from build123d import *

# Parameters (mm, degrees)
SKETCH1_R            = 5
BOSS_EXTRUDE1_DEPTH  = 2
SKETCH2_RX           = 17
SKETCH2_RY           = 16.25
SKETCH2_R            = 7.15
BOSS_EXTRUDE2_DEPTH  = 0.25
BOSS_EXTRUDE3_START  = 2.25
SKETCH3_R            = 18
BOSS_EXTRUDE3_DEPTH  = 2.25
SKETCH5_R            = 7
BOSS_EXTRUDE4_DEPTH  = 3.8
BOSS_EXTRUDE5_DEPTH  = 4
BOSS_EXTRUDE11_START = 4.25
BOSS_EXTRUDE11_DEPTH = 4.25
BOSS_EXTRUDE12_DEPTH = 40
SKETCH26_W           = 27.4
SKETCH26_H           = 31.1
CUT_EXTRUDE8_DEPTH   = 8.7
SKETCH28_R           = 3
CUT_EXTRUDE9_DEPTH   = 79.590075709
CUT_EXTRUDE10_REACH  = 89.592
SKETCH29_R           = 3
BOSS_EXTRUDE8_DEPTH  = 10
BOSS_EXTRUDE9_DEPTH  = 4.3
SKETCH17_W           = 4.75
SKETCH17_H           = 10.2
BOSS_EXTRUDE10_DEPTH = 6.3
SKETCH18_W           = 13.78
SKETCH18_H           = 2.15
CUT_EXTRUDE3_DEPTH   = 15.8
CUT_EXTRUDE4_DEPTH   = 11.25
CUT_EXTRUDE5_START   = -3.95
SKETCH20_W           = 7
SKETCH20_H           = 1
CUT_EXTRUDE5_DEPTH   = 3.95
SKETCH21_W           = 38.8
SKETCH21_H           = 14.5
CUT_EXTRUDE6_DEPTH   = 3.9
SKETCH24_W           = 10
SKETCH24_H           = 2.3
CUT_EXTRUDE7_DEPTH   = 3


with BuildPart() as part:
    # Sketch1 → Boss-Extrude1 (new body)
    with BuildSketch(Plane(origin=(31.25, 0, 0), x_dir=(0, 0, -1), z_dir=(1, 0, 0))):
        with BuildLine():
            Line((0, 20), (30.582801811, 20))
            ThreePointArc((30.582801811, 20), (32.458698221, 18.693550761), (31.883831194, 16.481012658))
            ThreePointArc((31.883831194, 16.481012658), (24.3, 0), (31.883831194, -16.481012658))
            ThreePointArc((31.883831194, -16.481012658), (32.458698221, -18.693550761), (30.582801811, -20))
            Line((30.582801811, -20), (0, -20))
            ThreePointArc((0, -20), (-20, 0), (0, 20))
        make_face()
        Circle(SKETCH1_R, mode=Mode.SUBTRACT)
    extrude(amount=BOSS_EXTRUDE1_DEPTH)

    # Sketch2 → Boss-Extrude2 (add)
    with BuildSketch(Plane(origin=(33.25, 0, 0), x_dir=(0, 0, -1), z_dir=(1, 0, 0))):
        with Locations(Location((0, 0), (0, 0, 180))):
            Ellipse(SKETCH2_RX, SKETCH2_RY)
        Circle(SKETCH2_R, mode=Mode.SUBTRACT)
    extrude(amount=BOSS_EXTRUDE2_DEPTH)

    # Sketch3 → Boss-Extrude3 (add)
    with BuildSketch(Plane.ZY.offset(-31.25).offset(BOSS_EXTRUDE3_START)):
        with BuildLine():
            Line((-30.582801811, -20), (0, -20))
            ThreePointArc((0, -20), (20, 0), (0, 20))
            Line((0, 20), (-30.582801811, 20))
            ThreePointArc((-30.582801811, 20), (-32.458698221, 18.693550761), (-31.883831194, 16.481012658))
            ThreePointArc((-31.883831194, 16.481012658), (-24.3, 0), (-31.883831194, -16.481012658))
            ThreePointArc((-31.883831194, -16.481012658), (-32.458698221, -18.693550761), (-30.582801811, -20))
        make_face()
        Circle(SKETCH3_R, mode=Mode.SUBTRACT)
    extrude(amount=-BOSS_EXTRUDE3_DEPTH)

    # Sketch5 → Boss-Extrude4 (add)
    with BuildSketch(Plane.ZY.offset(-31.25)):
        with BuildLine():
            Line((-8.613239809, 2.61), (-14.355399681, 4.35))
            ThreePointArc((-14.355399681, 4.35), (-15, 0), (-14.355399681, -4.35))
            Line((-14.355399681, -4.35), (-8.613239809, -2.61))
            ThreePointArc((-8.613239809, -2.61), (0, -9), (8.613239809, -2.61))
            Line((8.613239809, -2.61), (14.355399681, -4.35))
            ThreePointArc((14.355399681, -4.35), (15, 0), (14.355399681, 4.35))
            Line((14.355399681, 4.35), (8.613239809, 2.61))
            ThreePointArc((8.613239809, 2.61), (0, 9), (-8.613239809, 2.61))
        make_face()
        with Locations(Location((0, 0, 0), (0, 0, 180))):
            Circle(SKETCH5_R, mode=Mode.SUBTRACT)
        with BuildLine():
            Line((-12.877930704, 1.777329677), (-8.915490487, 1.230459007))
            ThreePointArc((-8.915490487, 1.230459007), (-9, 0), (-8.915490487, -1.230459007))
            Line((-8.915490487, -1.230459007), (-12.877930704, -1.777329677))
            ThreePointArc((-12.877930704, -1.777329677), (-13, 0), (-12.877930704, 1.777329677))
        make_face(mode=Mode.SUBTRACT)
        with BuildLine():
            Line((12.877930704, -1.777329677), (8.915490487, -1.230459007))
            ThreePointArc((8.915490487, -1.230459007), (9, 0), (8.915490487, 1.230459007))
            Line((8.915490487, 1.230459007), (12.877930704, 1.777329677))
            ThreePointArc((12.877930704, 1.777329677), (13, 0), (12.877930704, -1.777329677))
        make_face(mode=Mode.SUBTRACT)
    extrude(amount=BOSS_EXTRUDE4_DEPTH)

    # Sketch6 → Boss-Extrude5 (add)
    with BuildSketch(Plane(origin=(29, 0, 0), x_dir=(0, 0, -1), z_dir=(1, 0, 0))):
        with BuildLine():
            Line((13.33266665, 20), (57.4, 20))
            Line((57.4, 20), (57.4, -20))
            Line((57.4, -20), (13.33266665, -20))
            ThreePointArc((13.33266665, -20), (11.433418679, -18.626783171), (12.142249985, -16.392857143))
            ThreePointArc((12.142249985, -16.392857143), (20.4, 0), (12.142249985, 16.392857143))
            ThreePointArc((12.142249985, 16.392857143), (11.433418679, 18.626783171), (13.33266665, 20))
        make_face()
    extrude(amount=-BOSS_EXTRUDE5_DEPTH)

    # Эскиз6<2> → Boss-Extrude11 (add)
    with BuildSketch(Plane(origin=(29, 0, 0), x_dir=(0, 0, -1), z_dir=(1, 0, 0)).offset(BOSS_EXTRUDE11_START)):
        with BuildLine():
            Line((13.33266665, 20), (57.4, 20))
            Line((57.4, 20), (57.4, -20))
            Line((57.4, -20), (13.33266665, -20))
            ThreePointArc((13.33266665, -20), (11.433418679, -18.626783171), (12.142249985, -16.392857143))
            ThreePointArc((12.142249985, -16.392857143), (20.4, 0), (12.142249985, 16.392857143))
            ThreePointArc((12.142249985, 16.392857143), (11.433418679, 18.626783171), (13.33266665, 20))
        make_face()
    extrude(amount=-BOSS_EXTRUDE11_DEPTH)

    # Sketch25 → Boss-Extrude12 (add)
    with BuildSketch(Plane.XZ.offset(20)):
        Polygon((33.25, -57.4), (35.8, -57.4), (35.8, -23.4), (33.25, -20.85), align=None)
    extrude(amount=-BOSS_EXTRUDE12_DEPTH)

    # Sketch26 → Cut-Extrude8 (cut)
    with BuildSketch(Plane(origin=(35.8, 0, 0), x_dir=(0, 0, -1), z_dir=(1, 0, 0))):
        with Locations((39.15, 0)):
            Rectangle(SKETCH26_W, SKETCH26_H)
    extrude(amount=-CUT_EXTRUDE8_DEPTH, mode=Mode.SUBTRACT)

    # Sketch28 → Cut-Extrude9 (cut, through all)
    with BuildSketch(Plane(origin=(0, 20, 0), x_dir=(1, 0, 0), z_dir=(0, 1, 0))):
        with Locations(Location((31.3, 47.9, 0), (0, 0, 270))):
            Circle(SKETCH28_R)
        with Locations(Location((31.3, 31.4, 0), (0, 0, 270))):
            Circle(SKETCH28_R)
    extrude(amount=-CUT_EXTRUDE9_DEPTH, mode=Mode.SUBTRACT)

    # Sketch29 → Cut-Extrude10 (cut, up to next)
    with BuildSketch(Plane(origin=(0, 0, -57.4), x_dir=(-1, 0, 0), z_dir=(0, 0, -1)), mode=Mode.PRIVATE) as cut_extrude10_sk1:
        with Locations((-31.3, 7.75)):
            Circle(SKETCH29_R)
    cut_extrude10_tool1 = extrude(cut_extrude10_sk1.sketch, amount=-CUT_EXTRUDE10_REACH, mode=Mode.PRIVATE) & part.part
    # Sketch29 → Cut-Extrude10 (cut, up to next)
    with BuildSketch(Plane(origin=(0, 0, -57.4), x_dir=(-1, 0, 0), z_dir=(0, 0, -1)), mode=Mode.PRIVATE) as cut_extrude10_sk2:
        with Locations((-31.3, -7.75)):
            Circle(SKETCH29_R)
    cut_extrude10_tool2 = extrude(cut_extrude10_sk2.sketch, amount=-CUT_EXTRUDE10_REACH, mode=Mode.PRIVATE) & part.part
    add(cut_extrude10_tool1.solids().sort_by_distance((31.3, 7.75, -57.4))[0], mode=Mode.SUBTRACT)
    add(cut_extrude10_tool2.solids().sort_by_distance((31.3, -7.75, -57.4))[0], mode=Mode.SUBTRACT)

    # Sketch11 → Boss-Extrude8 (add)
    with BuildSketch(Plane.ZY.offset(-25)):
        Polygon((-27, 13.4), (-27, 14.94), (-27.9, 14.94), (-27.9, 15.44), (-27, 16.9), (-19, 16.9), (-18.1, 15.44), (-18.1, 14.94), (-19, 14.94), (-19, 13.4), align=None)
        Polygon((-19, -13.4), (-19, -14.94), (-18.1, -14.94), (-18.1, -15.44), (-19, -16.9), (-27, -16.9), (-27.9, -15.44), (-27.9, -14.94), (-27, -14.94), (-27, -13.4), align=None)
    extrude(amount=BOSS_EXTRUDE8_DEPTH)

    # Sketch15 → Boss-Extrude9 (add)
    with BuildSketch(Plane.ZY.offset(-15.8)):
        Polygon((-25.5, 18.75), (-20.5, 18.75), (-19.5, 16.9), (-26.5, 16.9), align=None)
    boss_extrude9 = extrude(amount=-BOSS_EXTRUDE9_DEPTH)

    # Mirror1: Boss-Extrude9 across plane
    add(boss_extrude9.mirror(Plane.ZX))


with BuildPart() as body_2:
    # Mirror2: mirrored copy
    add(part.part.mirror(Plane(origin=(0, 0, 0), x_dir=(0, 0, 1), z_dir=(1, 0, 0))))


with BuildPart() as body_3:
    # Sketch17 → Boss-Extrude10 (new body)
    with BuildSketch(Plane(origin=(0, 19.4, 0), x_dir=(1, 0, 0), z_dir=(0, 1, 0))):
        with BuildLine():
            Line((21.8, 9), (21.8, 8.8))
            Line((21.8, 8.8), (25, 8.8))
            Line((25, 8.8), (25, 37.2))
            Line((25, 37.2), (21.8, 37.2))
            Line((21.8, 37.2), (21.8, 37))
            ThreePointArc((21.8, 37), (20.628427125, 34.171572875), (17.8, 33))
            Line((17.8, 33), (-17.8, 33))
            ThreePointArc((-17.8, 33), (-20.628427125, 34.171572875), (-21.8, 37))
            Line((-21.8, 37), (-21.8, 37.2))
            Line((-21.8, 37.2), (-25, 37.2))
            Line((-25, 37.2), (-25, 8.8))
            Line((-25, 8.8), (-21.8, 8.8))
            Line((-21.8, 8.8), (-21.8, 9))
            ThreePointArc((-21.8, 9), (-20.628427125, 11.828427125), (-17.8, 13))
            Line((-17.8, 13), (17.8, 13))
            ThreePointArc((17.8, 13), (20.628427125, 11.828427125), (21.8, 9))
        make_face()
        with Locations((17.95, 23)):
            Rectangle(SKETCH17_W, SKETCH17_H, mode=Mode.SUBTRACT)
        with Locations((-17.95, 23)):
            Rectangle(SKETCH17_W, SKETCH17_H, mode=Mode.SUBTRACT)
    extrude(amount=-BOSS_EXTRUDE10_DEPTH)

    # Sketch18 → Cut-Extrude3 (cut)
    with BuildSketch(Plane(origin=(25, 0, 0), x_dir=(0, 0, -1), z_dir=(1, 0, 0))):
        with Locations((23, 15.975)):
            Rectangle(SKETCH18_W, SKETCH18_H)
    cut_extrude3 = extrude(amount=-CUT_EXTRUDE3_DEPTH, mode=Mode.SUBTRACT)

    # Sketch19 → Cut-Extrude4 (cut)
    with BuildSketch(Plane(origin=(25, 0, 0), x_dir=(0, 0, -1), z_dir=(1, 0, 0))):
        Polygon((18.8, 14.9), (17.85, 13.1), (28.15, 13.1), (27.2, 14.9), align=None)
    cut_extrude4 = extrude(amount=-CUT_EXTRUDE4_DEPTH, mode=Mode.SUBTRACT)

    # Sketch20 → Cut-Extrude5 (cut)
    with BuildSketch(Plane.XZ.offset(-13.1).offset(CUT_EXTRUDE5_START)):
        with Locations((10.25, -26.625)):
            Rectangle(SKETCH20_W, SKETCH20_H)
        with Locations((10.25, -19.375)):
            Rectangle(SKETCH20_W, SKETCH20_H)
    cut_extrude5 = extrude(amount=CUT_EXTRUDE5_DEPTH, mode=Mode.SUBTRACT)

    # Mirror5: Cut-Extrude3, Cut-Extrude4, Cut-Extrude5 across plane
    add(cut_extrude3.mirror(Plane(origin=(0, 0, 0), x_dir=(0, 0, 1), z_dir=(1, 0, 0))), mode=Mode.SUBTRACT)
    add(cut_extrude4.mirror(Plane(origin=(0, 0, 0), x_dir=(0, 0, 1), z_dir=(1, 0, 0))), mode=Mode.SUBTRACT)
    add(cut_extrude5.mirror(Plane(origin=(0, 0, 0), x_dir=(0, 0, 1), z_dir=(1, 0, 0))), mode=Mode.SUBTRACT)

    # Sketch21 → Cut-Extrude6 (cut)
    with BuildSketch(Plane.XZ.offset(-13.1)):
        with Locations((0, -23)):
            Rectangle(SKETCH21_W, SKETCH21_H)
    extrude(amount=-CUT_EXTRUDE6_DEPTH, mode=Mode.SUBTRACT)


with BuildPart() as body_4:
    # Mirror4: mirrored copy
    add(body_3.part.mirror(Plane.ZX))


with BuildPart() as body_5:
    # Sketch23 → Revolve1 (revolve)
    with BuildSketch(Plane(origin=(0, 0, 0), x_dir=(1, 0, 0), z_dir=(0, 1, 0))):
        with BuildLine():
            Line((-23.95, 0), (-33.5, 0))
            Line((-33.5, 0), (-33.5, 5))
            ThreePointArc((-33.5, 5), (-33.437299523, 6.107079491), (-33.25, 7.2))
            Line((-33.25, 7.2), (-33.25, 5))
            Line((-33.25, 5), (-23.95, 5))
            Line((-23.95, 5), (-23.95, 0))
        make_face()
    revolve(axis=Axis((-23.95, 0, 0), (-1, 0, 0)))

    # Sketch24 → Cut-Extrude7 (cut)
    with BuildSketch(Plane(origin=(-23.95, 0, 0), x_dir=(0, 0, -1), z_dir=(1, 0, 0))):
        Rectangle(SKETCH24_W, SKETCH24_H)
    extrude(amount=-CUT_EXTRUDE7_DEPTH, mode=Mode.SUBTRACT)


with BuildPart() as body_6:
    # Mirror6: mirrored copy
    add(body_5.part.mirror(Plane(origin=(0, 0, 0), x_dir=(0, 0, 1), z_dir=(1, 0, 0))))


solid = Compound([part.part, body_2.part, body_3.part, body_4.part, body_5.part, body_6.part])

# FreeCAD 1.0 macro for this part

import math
import FreeCAD as App
import Part
import Sketcher
Q = App.Units.Quantity


def add_polygon(sketch, points):
    """Adds a closed chain of lines whose ends are joined by coincident constraints."""
    first, n = sketch.GeometryCount, len(points)
    for a, b in zip(points, points[1:] + points[:1]):
        sketch.addGeometry(Part.LineSegment(App.Vector(*a, 0), App.Vector(*b, 0)), False)
    for i in range(n):
        sketch.addConstraint(Sketcher.Constraint("Coincident", first + i, 2, first + (i + 1) % n, 1))

doc = App.newDocument("Part")
body = doc.addObject("PartDesign::Body", "Body")

# Sketch on YZ plane
sketch1 = body.newObject("Sketcher::SketchObject", "Sketch")
sketch1.AttachmentSupport = (doc.getObject("YZ_Plane"), [""])
sketch1.MapMode = "FlatFace"
sketch1.AttachmentOffset = App.Placement(App.Vector(0, 0, 31.25), App.Rotation())
sketch1.addGeometry(Part.LineSegment(App.Vector(20, -30.6, 0), App.Vector(20, 0, 0)), False)
sketch1.addGeometry(Part.ArcOfCircle(Part.Circle(App.Vector(0, 0, 0), App.Vector(0, 0, 1), 20), math.radians(0), math.radians(180)), False)
sketch1.addGeometry(Part.LineSegment(App.Vector(-20, 0, 0), App.Vector(-20, -30.6, 0)), False)
sketch1.addGeometry(Part.ArcOfCircle(Part.Circle(App.Vector(-18, -30.6, 0), App.Vector(0, 0, 1), 2), math.radians(180), math.radians(319)), False)
sketch1.addGeometry(Part.ArcOfCircle(Part.Circle(App.Vector(0, -46, 0), App.Vector(0, 0, 1), 21.7), math.radians(41), math.radians(139)), False)
sketch1.addGeometry(Part.ArcOfCircle(Part.Circle(App.Vector(18, -30.6, 0), App.Vector(0, 0, 1), 2), math.radians(-139), math.radians(0)), False)
sketch1.addGeometry(Part.Circle(App.Vector(0, 0, 0), App.Vector(0, 0, 1), 5), False)
sketch1.addConstraint(Sketcher.Constraint("Tangent", 0, 2, 1, 1))
sketch1.addConstraint(Sketcher.Constraint("Tangent", 1, 2, 2, 1))
sketch1.addConstraint(Sketcher.Constraint("Tangent", 2, 2, 3, 1))
sketch1.addConstraint(Sketcher.Constraint("Tangent", 3, 2, 4, 2))
sketch1.addConstraint(Sketcher.Constraint("Tangent", 4, 1, 5, 1))
sketch1.addConstraint(Sketcher.Constraint("Tangent", 5, 2, 0, 1))
sketch1.addConstraint(Sketcher.Constraint("Vertical", 0))
sketch1.addConstraint(Sketcher.Constraint("Vertical", 2))
sketch1.addConstraint(Sketcher.Constraint("Coincident", 1, 3, -1, 1))
sketch1.addConstraint(Sketcher.Constraint("Coincident", 6, 3, -1, 1))
sketch1.addConstraint(Sketcher.Constraint("Equal", 3, 5))
sketch1.addConstraint(Sketcher.Constraint("PointOnObject", 4, 3, -2))
sketch1.addConstraint(Sketcher.Constraint("Diameter", 6, 10.0))
sketch1.addConstraint(Sketcher.Constraint("Radius", 1, 20.0))
sketch1.addConstraint(Sketcher.Constraint("Radius", 3, 2.0))
sketch1.addConstraint(Sketcher.Constraint("Radius", 4, 21.7))
sketch1.addConstraint(Sketcher.Constraint("DistanceY", 4, 3, -1, 1, 46.0))
pad1 = body.newObject("PartDesign::Pad", "Pad")
pad1.Profile = sketch1
pad1.Length = 2

# Sketch on YZ plane
sketch2 = body.newObject("Sketcher::SketchObject", "Sketch001")
sketch2.AttachmentSupport = (doc.getObject("YZ_Plane"), [""])
sketch2.MapMode = "FlatFace"
sketch2.AttachmentOffset = App.Placement(App.Vector(0, 0, 33.25), App.Rotation())
sketch2.addGeometry(Part.Ellipse(App.Vector(0, 17, 0), App.Vector(-16.25, 0, 0), App.Vector(0, 0, 0)), False)
sketch2.addGeometry(Part.Circle(App.Vector(0, 0, 0), App.Vector(0, 0, 1), 7.15), False)
sketch2.addConstraint(Sketcher.Constraint("Block", 0))
sketch2.addConstraint(Sketcher.Constraint("Coincident", 1, 3, -1, 1))
sketch2.addConstraint(Sketcher.Constraint("Diameter", 1, 14.3))
pad2 = body.newObject("PartDesign::Pad", "Pad001")
pad2.Profile = sketch2
pad2.Length = 0.25

# Sketch on YZ plane
sketch3 = body.newObject("Sketcher::SketchObject", "Sketch002")
sketch3.AttachmentSupport = (doc.getObject("YZ_Plane"), [""])
sketch3.MapMode = "FlatFace"
sketch3.AttachmentOffset = App.Placement(App.Vector(0, 0, 29), App.Rotation())
sketch3.addGeometry(Part.LineSegment(App.Vector(-20, -30.6, 0), App.Vector(-20, 0, 0)), False)
sketch3.addGeometry(Part.ArcOfCircle(Part.Circle(App.Vector(0, 0, 0), App.Vector(0, 0, 1), 20), math.radians(0), math.radians(180)), False)
sketch3.addGeometry(Part.LineSegment(App.Vector(20, 0, 0), App.Vector(20, -30.6, 0)), False)
sketch3.addGeometry(Part.ArcOfCircle(Part.Circle(App.Vector(18, -30.6, 0), App.Vector(0, 0, 1), 2), math.radians(-139), math.radians(0)), False)
sketch3.addGeometry(Part.ArcOfCircle(Part.Circle(App.Vector(0, -46, 0), App.Vector(0, 0, 1), 21.7), math.radians(41), math.radians(139)), False)
sketch3.addGeometry(Part.ArcOfCircle(Part.Circle(App.Vector(-18, -30.6, 0), App.Vector(0, 0, 1), 2), math.radians(180), math.radians(319)), False)
sketch3.addGeometry(Part.Circle(App.Vector(0, 0, 0), App.Vector(0, 0, 1), 18), False)
sketch3.addConstraint(Sketcher.Constraint("Tangent", 0, 2, 1, 2))
sketch3.addConstraint(Sketcher.Constraint("Tangent", 1, 1, 2, 1))
sketch3.addConstraint(Sketcher.Constraint("Tangent", 2, 2, 3, 2))
sketch3.addConstraint(Sketcher.Constraint("Tangent", 3, 1, 4, 1))
sketch3.addConstraint(Sketcher.Constraint("Tangent", 4, 2, 5, 2))
sketch3.addConstraint(Sketcher.Constraint("Tangent", 5, 1, 0, 1))
sketch3.addConstraint(Sketcher.Constraint("Vertical", 0))
sketch3.addConstraint(Sketcher.Constraint("Vertical", 2))
sketch3.addConstraint(Sketcher.Constraint("Coincident", 1, 3, -1, 1))
sketch3.addConstraint(Sketcher.Constraint("Coincident", 6, 3, -1, 1))
sketch3.addConstraint(Sketcher.Constraint("Equal", 3, 5))
sketch3.addConstraint(Sketcher.Constraint("PointOnObject", 4, 3, -2))
sketch3.addConstraint(Sketcher.Constraint("Diameter", 6, 36.0))
sketch3.addConstraint(Sketcher.Constraint("Radius", 1, 20.0))
sketch3.addConstraint(Sketcher.Constraint("Radius", 3, 2.0))
sketch3.addConstraint(Sketcher.Constraint("Radius", 4, 21.7))
sketch3.addConstraint(Sketcher.Constraint("DistanceY", 4, 3, -1, 1, 46.0))
pad3 = body.newObject("PartDesign::Pad", "Pad002")
pad3.Profile = sketch3
pad3.Length = 2.25

# Sketch on YZ plane
sketch4 = body.newObject("Sketcher::SketchObject", "Sketch003")
sketch4.AttachmentSupport = (doc.getObject("YZ_Plane"), [""])
sketch4.MapMode = "FlatFace"
sketch4.AttachmentOffset = App.Placement(App.Vector(0, 0, 31.25), App.Rotation())
sketch4.addGeometry(Part.LineSegment(App.Vector(2.6, -8.6, 0), App.Vector(4.3, -14.4, 0)), False)
sketch4.addGeometry(Part.ArcOfCircle(Part.Circle(App.Vector(0, 0, 0), App.Vector(0, 0, 1), 15), math.radians(-107), math.radians(-73)), False)
sketch4.addGeometry(Part.LineSegment(App.Vector(-4.3, -14.4, 0), App.Vector(-2.6, -8.6, 0)), False)
sketch4.addGeometry(Part.ArcOfCircle(Part.Circle(App.Vector(0, 0, 0), App.Vector(0, 0, 1), 9), math.radians(107), math.radians(253)), False)
sketch4.addGeometry(Part.LineSegment(App.Vector(-2.6, 8.6, 0), App.Vector(-4.3, 14.4, 0)), False)
sketch4.addGeometry(Part.ArcOfCircle(Part.Circle(App.Vector(0, 0, 0), App.Vector(0, 0, 1), 15), math.radians(73), math.radians(107)), False)
sketch4.addGeometry(Part.LineSegment(App.Vector(4.3, 14.4, 0), App.Vector(2.6, 8.6, 0)), False)
sketch4.addGeometry(Part.ArcOfCircle(Part.Circle(App.Vector(0, 0, 0), App.Vector(0, 0, 1), 9), math.radians(-73), math.radians(73)), False)
sketch4.addGeometry(Part.ArcOfCircle(Part.Circle(App.Vector(0, 0, 0), App.Vector(0, 0, 1), 13), math.radians(-97.86), math.radians(-82.14)), False)
sketch4.addGeometry(Part.LineSegment(App.Vector(1.8, -12.9, 0), App.Vector(1.2, -8.9, 0)), False)
sketch4.addGeometry(Part.ArcOfCircle(Part.Circle(App.Vector(0, 0, 0), App.Vector(0, 0, 1), 9), math.radians(-97.86), math.radians(-82.14)), False)
sketch4.addGeometry(Part.LineSegment(App.Vector(-1.2, -8.9, 0), App.Vector(-1.8, -12.9, 0)), False)
sketch4.addGeometry(Part.Circle(App.Vector(0, 0, 0), App.Vector(0, 0, 1), 7), False)
sketch4.addGeometry(Part.ArcOfCircle(Part.Circle(App.Vector(0, 0, 0), App.Vector(0, 0, 1), 13), math.radians(82.14), math.radians(97.86)), False)
sketch4.addGeometry(Part.LineSegment(App.Vector(-1.8, 12.9, 0), App.Vector(-1.2, 8.9, 0)), False)
sketch4.addGeometry(Part.ArcOfCircle(Part.Circle(App.Vector(0, 0, 0), App.Vector(0, 0, 1), 9), math.radians(82.14), math.radians(97.86)), False)
sketch4.addGeometry(Part.LineSegment(App.Vector(1.2, 8.9, 0), App.Vector(1.8, 12.9, 0)), False)
sketch4.addConstraint(Sketcher.Constraint("Coincident", 0, 2, 1, 2))
sketch4.addConstraint(Sketcher.Constraint("Coincident", 1, 1, 2, 1))
sketch4.addConstraint(Sketcher.Constraint("Coincident", 2, 2, 3, 2))
sketch4.addConstraint(Sketcher.Constraint("Coincident", 3, 1, 4, 1))
sketch4.addConstraint(Sketcher.Constraint("Coincident", 4, 2, 5, 2))
sketch4.addConstraint(Sketcher.Constraint("Coincident", 5, 1, 6, 1))
sketch4.addConstraint(Sketcher.Constraint("Coincident", 6, 2, 7, 2))
sketch4.addConstraint(Sketcher.Constraint("Coincident", 7, 1, 0, 1))
sketch4.addConstraint(Sketcher.Constraint("Coincident", 8, 2, 9, 1))
sketch4.addConstraint(Sketcher.Constraint("Coincident", 9, 2, 10, 2))
sketch4.addConstraint(Sketcher.Constraint("Coincident", 10, 1, 11, 1))
sketch4.addConstraint(Sketcher.Constraint("Coincident", 11, 2, 8, 1))
sketch4.addConstraint(Sketcher.Constraint("Coincident", 13, 2, 14, 1))
sketch4.addConstraint(Sketcher.Constraint("Coincident", 14, 2, 15, 2))
sketch4.addConstraint(Sketcher.Constraint("Coincident", 15, 1, 16, 1))
sketch4.addConstraint(Sketcher.Constraint("Coincident", 16, 2, 13, 1))
sketch4.addConstraint(Sketcher.Constraint("Coincident", 1, 3, -1, 1))
sketch4.addConstraint(Sketcher.Constraint("Coincident", 3, 3, -1, 1))
sketch4.addConstraint(Sketcher.Constraint("Coincident", 5, 3, -1, 1))
sketch4.addConstraint(Sketcher.Constraint("Coincident", 7, 3, -1, 1))
sketch4.addConstraint(Sketcher.Constraint("Coincident", 8, 3, -1, 1))
sketch4.addConstraint(Sketcher.Constraint("Coincident", 10, 3, -1, 1))
sketch4.addConstraint(Sketcher.Constraint("Coincident", 12, 3, -1, 1))
sketch4.addConstraint(Sketcher.Constraint("Coincident", 13, 3, -1, 1))
sketch4.addConstraint(Sketcher.Constraint("Coincident", 15, 3, -1, 1))
sketch4.addConstraint(Sketcher.Constraint("Equal", 1, 5))
sketch4.addConstraint(Sketcher.Constraint("Equal", 3, 7))
sketch4.addConstraint(Sketcher.Constraint("Equal", 7, 10))
sketch4.addConstraint(Sketcher.Constraint("Equal", 8, 13))
sketch4.addConstraint(Sketcher.Constraint("Equal", 10, 15))
sketch4.addConstraint(Sketcher.Constraint("Parallel", 0, 4))
sketch4.addConstraint(Sketcher.Constraint("Parallel", 2, 6))
sketch4.addConstraint(Sketcher.Constraint("Parallel", 9, 14))
sketch4.addConstraint(Sketcher.Constraint("Parallel", 11, 16))
sketch4.addConstraint(Sketcher.Constraint("Horizontal", 0, 2, 1, 1))
sketch4.addConstraint(Sketcher.Constraint("Horizontal", 4, 2, 5, 1))
sketch4.addConstraint(Sketcher.Constraint("Horizontal", 3, 1, 6, 2))
sketch4.addConstraint(Sketcher.Constraint("Horizontal", 9, 2, 10, 1))
sketch4.addConstraint(Sketcher.Constraint("Horizontal", 8, 2, 11, 2))
sketch4.addConstraint(Sketcher.Constraint("Horizontal", 14, 2, 15, 1))
sketch4.addConstraint(Sketcher.Constraint("Vertical", 2, 2, 3, 1))
sketch4.addConstraint(Sketcher.Constraint("Vertical", 11, 2, 13, 2))
sketch4.addConstraint(Sketcher.Constraint("Diameter", 12, 14.0))
sketch4.addConstraint(Sketcher.Constraint("Radius", 1, 15.0))
sketch4.addConstraint(Sketcher.Constraint("Radius", 3, 9.0))
sketch4.addConstraint(Sketcher.Constraint("Radius", 8, 13.0))
sketch4.addConstraint(Sketcher.Constraint("DistanceX", 1, 1, 0, 2, 8.7))
sketch4.addConstraint(Sketcher.Constraint("DistanceX", 2, 2, -1, 1, 2.61))
sketch4.addConstraint(Sketcher.Constraint("DistanceX", -1, 1, 8, 2, 1.77733))
sketch4.addConstraint(Sketcher.Constraint("DistanceX", -1, 1, 9, 2, 1.230459))
pad4 = body.newObject("PartDesign::Pad", "Pad003")
pad4.Profile = sketch4
pad4.Length = 3.8
pad4.Reversed = True

# Sketch on YZ plane
sketch5 = body.newObject("Sketcher::SketchObject", "Sketch004")
sketch5.AttachmentSupport = (doc.getObject("YZ_Plane"), [""])
sketch5.MapMode = "FlatFace"
sketch5.AttachmentOffset = App.Placement(App.Vector(0, 0, 29), App.Rotation())
sketch5.addGeometry(Part.LineSegment(App.Vector(20, -57.4, 0), App.Vector(20, -13.3, 0)), False)
sketch5.addGeometry(Part.ArcOfCircle(Part.Circle(App.Vector(18, -13.3, 0), App.Vector(0, 0, 1), 2), math.radians(0), math.radians(143)), False)
sketch5.addGeometry(Part.ArcOfCircle(Part.Circle(App.Vector(0, 0, 0), App.Vector(0, 0, 1), 20.4), math.radians(-143), math.radians(-37)), False)
sketch5.addGeometry(Part.ArcOfCircle(Part.Circle(App.Vector(-18, -13.3, 0), App.Vector(0, 0, 1), 2), math.radians(37), math.radians(180)), False)
sketch5.addGeometry(Part.LineSegment(App.Vector(-20, -13.3, 0), App.Vector(-20, -57.4, 0)), False)
sketch5.addGeometry(Part.LineSegment(App.Vector(-20, -57.4, 0), App.Vector(20, -57.4, 0)), False)
sketch5.addConstraint(Sketcher.Constraint("Tangent", 0, 2, 1, 1))
sketch5.addConstraint(Sketcher.Constraint("Tangent", 1, 2, 2, 2))
sketch5.addConstraint(Sketcher.Constraint("Tangent", 2, 1, 3, 1))
sketch5.addConstraint(Sketcher.Constraint("Tangent", 3, 2, 4, 1))
sketch5.addConstraint(Sketcher.Constraint("Coincident", 4, 2, 5, 1))
sketch5.addConstraint(Sketcher.Constraint("Coincident", 5, 2, 0, 1))
sketch5.addConstraint(Sketcher.Constraint("Vertical", 0))
sketch5.addConstraint(Sketcher.Constraint("Vertical", 4))
sketch5.addConstraint(Sketcher.Constraint("Horizontal", 5))
sketch5.addConstraint(Sketcher.Constraint("Coincident", 2, 3, -1, 1))
sketch5.addConstraint(Sketcher.Constraint("Equal", 1, 3))
sketch5.addConstraint(Sketcher.Constraint("Horizontal", 1, 3, 3, 3))
sketch5.addConstraint(Sketcher.Constraint("Radius", 1, 2.0))
sketch5.addConstraint(Sketcher.Constraint("Radius", 2, 20.4))
sketch5.addConstraint(Sketcher.Constraint("DistanceX", 5, 1, 5, 2, 40.0))
sketch5.addConstraint(Sketcher.Constraint("DistanceY", 4, 2, -1, 1, 57.4))
pad5 = body.newObject("PartDesign::Pad", "Pad004")
pad5.Profile = sketch5
pad5.Length = 4
pad5.Reversed = True

# Sketch on YZ plane
sketch6 = body.newObject("Sketcher::SketchObject", "Sketch005")
sketch6.AttachmentSupport = (doc.getObject("YZ_Plane"), [""])
sketch6.MapMode = "FlatFace"
sketch6.AttachmentOffset = App.Placement(App.Vector(0, 0, 33.25), App.Rotation())
sketch6.addGeometry(Part.LineSegment(App.Vector(20, -57.4, 0), App.Vector(20, -13.3, 0)), False)
sketch6.addGeometry(Part.ArcOfCircle(Part.Circle(App.Vector(18, -13.3, 0), App.Vector(0, 0, 1), 2), math.radians(0), math.radians(143)), False)
sketch6.addGeometry(Part.ArcOfCircle(Part.Circle(App.Vector(0, 0, 0), App.Vector(0, 0, 1), 20.4), math.radians(-143), math.radians(-37)), False)
sketch6.addGeometry(Part.ArcOfCircle(Part.Circle(App.Vector(-18, -13.3, 0), App.Vector(0, 0, 1), 2), math.radians(37), math.radians(180)), False)
sketch6.addGeometry(Part.LineSegment(App.Vector(-20, -13.3, 0), App.Vector(-20, -57.4, 0)), False)
sketch6.addGeometry(Part.LineSegment(App.Vector(-20, -57.4, 0), App.Vector(20, -57.4, 0)), False)
sketch6.addConstraint(Sketcher.Constraint("Tangent", 0, 2, 1, 1))
sketch6.addConstraint(Sketcher.Constraint("Tangent", 1, 2, 2, 2))
sketch6.addConstraint(Sketcher.Constraint("Tangent", 2, 1, 3, 1))
sketch6.addConstraint(Sketcher.Constraint("Tangent", 3, 2, 4, 1))
sketch6.addConstraint(Sketcher.Constraint("Coincident", 4, 2, 5, 1))
sketch6.addConstraint(Sketcher.Constraint("Coincident", 5, 2, 0, 1))
sketch6.addConstraint(Sketcher.Constraint("Vertical", 0))
sketch6.addConstraint(Sketcher.Constraint("Vertical", 4))
sketch6.addConstraint(Sketcher.Constraint("Horizontal", 5))
sketch6.addConstraint(Sketcher.Constraint("Coincident", 2, 3, -1, 1))
sketch6.addConstraint(Sketcher.Constraint("Equal", 1, 3))
sketch6.addConstraint(Sketcher.Constraint("Horizontal", 1, 3, 3, 3))
sketch6.addConstraint(Sketcher.Constraint("Radius", 1, 2.0))
sketch6.addConstraint(Sketcher.Constraint("Radius", 2, 20.4))
sketch6.addConstraint(Sketcher.Constraint("DistanceX", 5, 1, 5, 2, 40.0))
sketch6.addConstraint(Sketcher.Constraint("DistanceY", 4, 2, -1, 1, 57.4))
pad6 = body.newObject("PartDesign::Pad", "Pad005")
pad6.Profile = sketch6
pad6.Length = 4.25
pad6.Reversed = True

# Sketch on XZ plane
sketch7 = body.newObject("Sketcher::SketchObject", "Sketch006")
sketch7.AttachmentSupport = (doc.getObject("XZ_Plane"), [""])
sketch7.MapMode = "FlatFace"
sketch7.AttachmentOffset = App.Placement(App.Vector(0, 0, 20), App.Rotation())
add_polygon(sketch7, [(33.2, -57.4), (35.8, -57.4), (35.8, -23.4), (33.2, -20.9)])  # lines 0-3
sketch7.addConstraint(Sketcher.Constraint("Horizontal", 0))
sketch7.addConstraint(Sketcher.Constraint("Vertical", 1))
sketch7.addConstraint(Sketcher.Constraint("Vertical", 3))
sketch7.addConstraint(Sketcher.Constraint("DistanceY", 1, 1, 1, 2, 34.0))
sketch7.addConstraint(Sketcher.Constraint("Angle", 2, Q("135 deg")))
sketch7.addConstraint(Sketcher.Constraint("DistanceX", 0, 1, 0, 2, 2.55))
sketch7.addConstraint(Sketcher.Constraint("DistanceX", -1, 1, 0, 2, 35.8))
sketch7.addConstraint(Sketcher.Constraint("DistanceY", 0, 2, -1, 1, 57.4))
pad7 = body.newObject("PartDesign::Pad", "Pad006")
pad7.Profile = sketch7
pad7.Length = 40
pad7.Reversed = True

# Sketch on YZ plane
sketch8 = body.newObject("Sketcher::SketchObject", "Sketch007")
sketch8.AttachmentSupport = (doc.getObject("YZ_Plane"), [""])
sketch8.MapMode = "FlatFace"
sketch8.AttachmentOffset = App.Placement(App.Vector(0, 0, 35.8), App.Rotation())
add_polygon(sketch8, [(16, -25), (-16, -25), (-16, -53), (16, -53)])  # lines 0-3
sketch8.addConstraint(Sketcher.Constraint("Horizontal", 0))
sketch8.addConstraint(Sketcher.Constraint("Vertical", 1))
sketch8.addConstraint(Sketcher.Constraint("Horizontal", 2))
sketch8.addConstraint(Sketcher.Constraint("Vertical", 3))
sketch8.addConstraint(Sketcher.Constraint("DistanceX", 0, 2, 0, 1, 31.1))
sketch8.addConstraint(Sketcher.Constraint("DistanceY", 1, 2, 1, 1, 27.4))
sketch8.addConstraint(Sketcher.Constraint("DistanceX", 0, 2, -1, 1, 15.55))
sketch8.addConstraint(Sketcher.Constraint("DistanceY", 0, 2, -1, 1, 25.45))
pocket1 = body.newObject("PartDesign::Pocket", "Pocket")
pocket1.Profile = sketch8
pocket1.Length = 8.7

# Sketch on XZ plane
sketch9 = body.newObject("Sketcher::SketchObject", "Sketch008")
sketch9.AttachmentSupport = (doc.getObject("XZ_Plane"), [""])
sketch9.MapMode = "FlatFace"
sketch9.AttachmentOffset = App.Placement(App.Vector(0, 0, -20), App.Rotation())
sketch9.addGeometry(Part.Circle(App.Vector(31.3, -47.9, 0), App.Vector(0, 0, 1), 3), False)
sketch9.addGeometry(Part.Circle(App.Vector(31.3, -31.4, 0), App.Vector(0, 0, 1), 3), False)
sketch9.addConstraint(Sketcher.Constraint("Equal", 0, 1))
sketch9.addConstraint(Sketcher.Constraint("Vertical", 0, 3, 1, 3))
sketch9.addConstraint(Sketcher.Constraint("Diameter", 0, 6.0))
sketch9.addConstraint(Sketcher.Constraint("DistanceX", -1, 1, 0, 3, 31.3))
sketch9.addConstraint(Sketcher.Constraint("DistanceY", 0, 3, -1, 1, 47.9))
sketch9.addConstraint(Sketcher.Constraint("DistanceY", 1, 3, -1, 1, 31.4))
pocket2 = body.newObject("PartDesign::Pocket", "Pocket001")
pocket2.Profile = sketch9
pocket2.Type = "ThroughAll"
pocket2.Reversed = True

# Sketch on XY plane
sketch10 = body.newObject("Sketcher::SketchObject", "Sketch009")
sketch10.AttachmentSupport = (doc.getObject("XY_Plane"), [""])
sketch10.MapMode = "FlatFace"
sketch10.AttachmentOffset = App.Placement(App.Vector(0, 0, -57.4), App.Rotation())
sketch10.addGeometry(Part.Circle(App.Vector(31.3, 7.8, 0), App.Vector(0, 0, 1), 3), False)
sketch10.addConstraint(Sketcher.Constraint("Diameter", 0, 6.0))
sketch10.addConstraint(Sketcher.Constraint("DistanceX", -1, 1, 0, 3, 31.3))
sketch10.addConstraint(Sketcher.Constraint("DistanceY", -1, 1, 0, 3, 7.75))
pocket3 = body.newObject("PartDesign::Pocket", "Pocket002")
pocket3.Profile = sketch10
pocket3.Type = "UpToFirst"
pocket3.Reversed = True

# Sketch on XY plane
sketch11 = body.newObject("Sketcher::SketchObject", "Sketch010")
sketch11.AttachmentSupport = (doc.getObject("XY_Plane"), [""])
sketch11.MapMode = "FlatFace"
sketch11.AttachmentOffset = App.Placement(App.Vector(0, 0, -57.4), App.Rotation())
sketch11.addGeometry(Part.Circle(App.Vector(31.3, -7.8, 0), App.Vector(0, 0, 1), 3), False)
sketch11.addConstraint(Sketcher.Constraint("Diameter", 0, 6.0))
sketch11.addConstraint(Sketcher.Constraint("DistanceX", -1, 1, 0, 3, 31.3))
sketch11.addConstraint(Sketcher.Constraint("DistanceY", 0, 3, -1, 1, 7.75))
pocket4 = body.newObject("PartDesign::Pocket", "Pocket003")
pocket4.Profile = sketch11
pocket4.Type = "UpToFirst"
pocket4.Reversed = True

# Sketch on YZ plane
sketch12 = body.newObject("Sketcher::SketchObject", "Sketch011")
sketch12.AttachmentSupport = (doc.getObject("YZ_Plane"), [""])
sketch12.MapMode = "FlatFace"
sketch12.AttachmentOffset = App.Placement(App.Vector(0, 0, 25), App.Rotation())
add_polygon(sketch12, [(14.9, -27), (13.4, -27), (13.4, -19), (14.9, -19), (14.9, -18.1), (15.4, -18.1), (16.9, -19), (16.9, -27), (15.4, -27.9), (14.9, -27.9)])  # lines 0-9
add_polygon(sketch12, [(-14.9, -19), (-13.4, -19), (-13.4, -27), (-14.9, -27), (-14.9, -27.9), (-15.4, -27.9), (-16.9, -27), (-16.9, -19), (-15.4, -18.1), (-14.9, -18.1)])  # lines 10-19
sketch12.addConstraint(Sketcher.Constraint("Horizontal", 0))
sketch12.addConstraint(Sketcher.Constraint("Vertical", 1))
sketch12.addConstraint(Sketcher.Constraint("Horizontal", 2))
sketch12.addConstraint(Sketcher.Constraint("Vertical", 3))
sketch12.addConstraint(Sketcher.Constraint("Horizontal", 4))
sketch12.addConstraint(Sketcher.Constraint("Vertical", 6))
sketch12.addConstraint(Sketcher.Constraint("Horizontal", 8))
sketch12.addConstraint(Sketcher.Constraint("Vertical", 9))
sketch12.addConstraint(Sketcher.Constraint("Horizontal", 10))
sketch12.addConstraint(Sketcher.Constraint("Vertical", 11))
sketch12.addConstraint(Sketcher.Constraint("Horizontal", 12))
sketch12.addConstraint(Sketcher.Constraint("Vertical", 13))
sketch12.addConstraint(Sketcher.Constraint("Horizontal", 14))
sketch12.addConstraint(Sketcher.Constraint("Vertical", 16))
sketch12.addConstraint(Sketcher.Constraint("Horizontal", 18))
sketch12.addConstraint(Sketcher.Constraint("Vertical", 19))
sketch12.addConstraint(Sketcher.Constraint("Symmetric", 1, 2, 10, 2, -2))
sketch12.addConstraint(Sketcher.Constraint("Symmetric", 9, 2, 12, 2, -2))
sketch12.addConstraint(Sketcher.Constraint("Symmetric", 7, 2, 14, 2, -2))
sketch12.addConstraint(Sketcher.Constraint("Symmetric", 6, 2, 15, 2, -2))
sketch12.addConstraint(Sketcher.Constraint("Symmetric", 4, 2, 17, 2, -2))
sketch12.addConstraint(Sketcher.Constraint("Parallel", 5, 15))
sketch12.addConstraint(Sketcher.Constraint("Parallel", 7, 17))
sketch12.addConstraint(Sketcher.Constraint("Horizontal", 2, 2, 5, 2))
sketch12.addConstraint(Sketcher.Constraint("Horizontal", 0, 2, 6, 2))
sketch12.addConstraint(Sketcher.Constraint("Vertical", 4, 2, 7, 2))
sketch12.addConstraint(Sketcher.Constraint("Vertical", 3, 2, 8, 2))
sketch12.addConstraint(Sketcher.Constraint("Vertical", 13, 2, 18, 2))
sketch12.addConstraint(Sketcher.Constraint("DistanceY", 1, 1, 1, 2, 8.0))
sketch12.addConstraint(Sketcher.Constraint("DistanceX", 4, 1, 4, 2, 0.5))
sketch12.addConstraint(Sketcher.Constraint("DistanceY", 3, 1, 3, 2, 0.9))
sketch12.addConstraint(Sketcher.Constraint("DistanceY", 0, 2, -1, 1, 27.0))
sketch12.addConstraint(Sketcher.Constraint("DistanceX", 0, 2, 0, 1, 1.54))
sketch12.addConstraint(Sketcher.Constraint("DistanceX", -1, 1, 0, 2, 13.4))
sketch12.addConstraint(Sketcher.Constraint("DistanceX", -1, 1, 5, 2, 16.9))
pad8 = body.newObject("PartDesign::Pad", "Pad007")
pad8.Profile = sketch12
pad8.Length = 10
pad8.Reversed = True

# Sketch on YZ plane
sketch13 = body.newObject("Sketcher::SketchObject", "Sketch012")
sketch13.AttachmentSupport = (doc.getObject("YZ_Plane"), [""])
sketch13.MapMode = "FlatFace"
sketch13.AttachmentOffset = App.Placement(App.Vector(0, 0, 15.8), App.Rotation())
add_polygon(sketch13, [(18.8, -20.5), (18.8, -25.5), (16.9, -26.5), (16.9, -19.5)])  # lines 0-3
sketch13.addConstraint(Sketcher.Constraint("Vertical", 0))
sketch13.addConstraint(Sketcher.Constraint("Vertical", 2))
sketch13.addConstraint(Sketcher.Constraint("Equal", 1, 3))
sketch13.addConstraint(Sketcher.Constraint("DistanceY", 0, 2, 0, 1, 5.0))
sketch13.addConstraint(Sketcher.Constraint("DistanceY", 2, 1, 2, 2, 7.0))
sketch13.addConstraint(Sketcher.Constraint("DistanceY", 0, 2, -1, 1, 25.5))
sketch13.addConstraint(Sketcher.Constraint("DistanceX", -1, 1, 1, 2, 16.9))
sketch13.addConstraint(Sketcher.Constraint("DistanceX", -1, 1, 0, 2, 18.75))
pad9 = body.newObject("PartDesign::Pad", "Pad008")
pad9.Profile = sketch13
pad9.Length = 4.3
doc.recompute()

mirrored = body.newObject("PartDesign::Mirrored", "Mirrored")
mirrored.Originals = [pad9]
mirrored.MirrorPlane = (doc.getObject("XZ_Plane"), [""])
body.Tip = mirrored
body2 = doc.addObject("PartDesign::Body", "Body001")
doc.recompute()

mirroring = doc.addObject("Part::Mirroring", "Mirroring")
mirroring.Source = body
mirroring.Base = App.Vector(0, 0, 0)
mirroring.Normal = App.Vector(1, 0, 0)
body2.BaseFeature = mirroring
doc.recompute()
body3 = doc.addObject("PartDesign::Body", "Body002")

# Sketch on XZ plane
sketch14 = body3.newObject("Sketcher::SketchObject", "Sketch013")
sketch14.AttachmentSupport = (doc.getObject("XZ_Plane002"), [""])
sketch14.MapMode = "FlatFace"
sketch14.AttachmentOffset = App.Placement(App.Vector(0, 0, -19.4), App.Rotation())
sketch14.addGeometry(Part.LineSegment(App.Vector(21.8, -9, 0), App.Vector(21.8, -8.8, 0)), False)  # 0
sketch14.addGeometry(Part.LineSegment(App.Vector(21.8, -8.8, 0), App.Vector(25, -8.8, 0)), False)  # 1
sketch14.addGeometry(Part.LineSegment(App.Vector(25, -8.8, 0), App.Vector(25, -37.2, 0)), False)  # 2
sketch14.addGeometry(Part.LineSegment(App.Vector(25, -37.2, 0), App.Vector(21.8, -37.2, 0)), False)  # 3
sketch14.addGeometry(Part.LineSegment(App.Vector(21.8, -37.2, 0), App.Vector(21.8, -37, 0)), False)  # 4
sketch14.addGeometry(Part.ArcOfCircle(Part.Circle(App.Vector(17.8, -37, 0), App.Vector(0, 0, 1), 4), math.radians(0), math.radians(90)), False)  # 5
sketch14.addGeometry(Part.LineSegment(App.Vector(17.8, -33, 0), App.Vector(-17.8, -33, 0)), False)  # 6
sketch14.addGeometry(Part.ArcOfCircle(Part.Circle(App.Vector(-17.8, -37, 0), App.Vector(0, 0, 1), 4), math.radians(90), math.radians(180)), False)  # 7
sketch14.addGeometry(Part.LineSegment(App.Vector(-21.8, -37, 0), App.Vector(-21.8, -37.2, 0)), False)  # 8
sketch14.addGeometry(Part.LineSegment(App.Vector(-21.8, -37.2, 0), App.Vector(-25, -37.2, 0)), False)  # 9
sketch14.addGeometry(Part.LineSegment(App.Vector(-25, -37.2, 0), App.Vector(-25, -8.8, 0)), False)  # 10
sketch14.addGeometry(Part.LineSegment(App.Vector(-25, -8.8, 0), App.Vector(-21.8, -8.8, 0)), False)  # 11
sketch14.addGeometry(Part.LineSegment(App.Vector(-21.8, -8.8, 0), App.Vector(-21.8, -9, 0)), False)  # 12
sketch14.addGeometry(Part.ArcOfCircle(Part.Circle(App.Vector(-17.8, -9, 0), App.Vector(0, 0, 1), 4), math.radians(180), math.radians(270)), False)  # 13
sketch14.addGeometry(Part.LineSegment(App.Vector(-17.8, -13, 0), App.Vector(17.8, -13, 0)), False)  # 14
sketch14.addGeometry(Part.ArcOfCircle(Part.Circle(App.Vector(17.8, -9, 0), App.Vector(0, 0, 1), 4), math.radians(-90), math.radians(0)), False)  # 15
add_polygon(sketch14, [(-15.57, -17.9), (-20.32, -17.9), (-20.32, -28.1), (-15.57, -28.1)])  # lines 16-19
add_polygon(sketch14, [(20.32, -17.9), (15.57, -17.9), (15.57, -28.1), (20.32, -28.1)])  # lines 20-23
sketch14.addConstraint(Sketcher.Constraint("Coincident", 0, 2, 1, 1))
sketch14.addConstraint(Sketcher.Constraint("Coincident", 1, 2, 2, 1))
sketch14.addConstraint(Sketcher.Constraint("Coincident", 2, 2, 3, 1))
sketch14.addConstraint(Sketcher.Constraint("Coincident", 3, 2, 4, 1))
sketch14.addConstraint(Sketcher.Constraint("Tangent", 4, 2, 5, 1))
sketch14.addConstraint(Sketcher.Constraint("Tangent", 5, 2, 6, 1))
sketch14.addConstraint(Sketcher.Constraint("Tangent", 6, 2, 7, 1))
sketch14.addConstraint(Sketcher.Constraint("Tangent", 7, 2, 8, 1))
sketch14.addConstraint(Sketcher.Constraint("Coincident", 8, 2, 9, 1))
sketch14.addConstraint(Sketcher.Constraint("Coincident", 9, 2, 10, 1))
sketch14.addConstraint(Sketcher.Constraint("Coincident", 10, 2, 11, 1))
sketch14.addConstraint(Sketcher.Constraint("Coincident", 11, 2, 12, 1))
sketch14.addConstraint(Sketcher.Constraint("Tangent", 12, 2, 13, 1))
sketch14.addConstraint(Sketcher.Constraint("Tangent", 13, 2, 14, 1))
sketch14.addConstraint(Sketcher.Constraint("Tangent", 14, 2, 15, 1))
sketch14.addConstraint(Sketcher.Constraint("Tangent", 15, 2, 0, 1))
sketch14.addConstraint(Sketcher.Constraint("Vertical", 0))
sketch14.addConstraint(Sketcher.Constraint("Horizontal", 1))
sketch14.addConstraint(Sketcher.Constraint("Vertical", 2))
sketch14.addConstraint(Sketcher.Constraint("Horizontal", 3))
sketch14.addConstraint(Sketcher.Constraint("Vertical", 4))
sketch14.addConstraint(Sketcher.Constraint("Horizontal", 6))
sketch14.addConstraint(Sketcher.Constraint("Vertical", 8))
sketch14.addConstraint(Sketcher.Constraint("Horizontal", 9))
sketch14.addConstraint(Sketcher.Constraint("Vertical", 10))
sketch14.addConstraint(Sketcher.Constraint("Horizontal", 11))
sketch14.addConstraint(Sketcher.Constraint("Vertical", 12))
sketch14.addConstraint(Sketcher.Constraint("Horizontal", 14))
sketch14.addConstraint(Sketcher.Constraint("Horizontal", 16))
sketch14.addConstraint(Sketcher.Constraint("Vertical", 17))
sketch14.addConstraint(Sketcher.Constraint("Horizontal", 18))
sketch14.addConstraint(Sketcher.Constraint("Vertical", 19))
sketch14.addConstraint(Sketcher.Constraint("Horizontal", 20))
sketch14.addConstraint(Sketcher.Constraint("Vertical", 21))
sketch14.addConstraint(Sketcher.Constraint("Horizontal", 22))
sketch14.addConstraint(Sketcher.Constraint("Vertical", 23))
sketch14.addConstraint(Sketcher.Constraint("Equal", 5, 7))
sketch14.addConstraint(Sketcher.Constraint("Equal", 7, 13))
sketch14.addConstraint(Sketcher.Constraint("Equal", 13, 15))
sketch14.addConstraint(Sketcher.Constraint("Symmetric", 3, 2, 8, 2, -2))
sketch14.addConstraint(Sketcher.Constraint("Symmetric", 1, 2, 10, 2, -2))
sketch14.addConstraint(Sketcher.Constraint("Symmetric", 19, 2, 20, 2, -2))
sketch14.addConstraint(Sketcher.Constraint("Symmetric", 17, 2, 22, 2, -2))
sketch14.addConstraint(Sketcher.Constraint("Vertical", 7, 3, 13, 3))
sketch14.addConstraint(Sketcher.Constraint("Vertical", 5, 3, 15, 3))
sketch14.addConstraint(Sketcher.Constraint("Equal", 0, 4))
sketch14.addConstraint(Sketcher.Constraint("Radius", 5, 4.0))
sketch14.addConstraint(Sketcher.Constraint("DistanceX", 1, 1, 1, 2, 3.2))
sketch14.addConstraint(Sketcher.Constraint("DistanceX", 6, 2, 6, 1, 35.6))
sketch14.addConstraint(Sketcher.Constraint("DistanceY", 0, 1, 0, 2, 0.2))
sketch14.addConstraint(Sketcher.Constraint("DistanceY", 2, 2, 2, 1, 28.4))
sketch14.addConstraint(Sketcher.Constraint("DistanceY", 17, 2, 17, 1, 10.2))
sketch14.addConstraint(Sketcher.Constraint("DistanceY", 5, 3, -1, 1, 37.0))
sketch14.addConstraint(Sketcher.Constraint("DistanceX", 16, 2, 16, 1, 4.75))
sketch14.addConstraint(Sketcher.Constraint("DistanceY", 16, 2, -1, 1, 17.9))
sketch14.addConstraint(Sketcher.Constraint("DistanceX", 16, 2, -1, 1, 20.325))
pad10 = body3.newObject("PartDesign::Pad", "Pad009")
pad10.Profile = sketch14
pad10.Length = 6.3

# Sketch on YZ plane
sketch15 = body3.newObject("Sketcher::SketchObject", "Sketch014")
sketch15.AttachmentSupport = (doc.getObject("YZ_Plane002"), [""])
sketch15.MapMode = "FlatFace"
sketch15.AttachmentOffset = App.Placement(App.Vector(0, 0, 25), App.Rotation())
add_polygon(sketch15, [(17.1, -16.1), (14.9, -16.1), (14.9, -29.9), (17.1, -29.9)])  # lines 0-3
sketch15.addConstraint(Sketcher.Constraint("Horizontal", 0))
sketch15.addConstraint(Sketcher.Constraint("Vertical", 1))
sketch15.addConstraint(Sketcher.Constraint("Horizontal", 2))
sketch15.addConstraint(Sketcher.Constraint("Vertical", 3))
sketch15.addConstraint(Sketcher.Constraint("DistanceX", 0, 2, 0, 1, 2.15))
sketch15.addConstraint(Sketcher.Constraint("DistanceY", 1, 2, 1, 1, 13.78))
sketch15.addConstraint(Sketcher.Constraint("DistanceX", -1, 1, 0, 2, 14.9))
sketch15.addConstraint(Sketcher.Constraint("DistanceY", 0, 2, -1, 1, 16.11))
pocket5 = body3.newObject("PartDesign::Pocket", "Pocket004")
pocket5.Profile = sketch15
pocket5.Length = 15.8

# Sketch on YZ plane
sketch16 = body3.newObject("Sketcher::SketchObject", "Sketch015")
sketch16.AttachmentSupport = (doc.getObject("YZ_Plane002"), [""])
sketch16.MapMode = "FlatFace"
sketch16.AttachmentOffset = App.Placement(App.Vector(0, 0, 25), App.Rotation())
add_polygon(sketch16, [(14.9, -18.8), (13.1, -17.9), (13.1, -28.1), (14.9, -27.2)])  # lines 0-3
sketch16.addConstraint(Sketcher.Constraint("Vertical", 1))
sketch16.addConstraint(Sketcher.Constraint("Vertical", 3))
sketch16.addConstraint(Sketcher.Constraint("Equal", 0, 2))
sketch16.addConstraint(Sketcher.Constraint("DistanceY", 1, 2, 1, 1, 10.3))
sketch16.addConstraint(Sketcher.Constraint("DistanceY", 3, 1, 3, 2, 8.4))
sketch16.addConstraint(Sketcher.Constraint("DistanceX", -1, 1, 0, 2, 13.1))
sketch16.addConstraint(Sketcher.Constraint("DistanceX", -1, 1, 2, 2, 14.9))
sketch16.addConstraint(Sketcher.Constraint("DistanceY", 2, 2, -1, 1, 27.2))
pocket6 = body3.newObject("PartDesign::Pocket", "Pocket005")
pocket6.Profile = sketch16
pocket6.Length = 11.25

# Sketch on XZ plane
sketch17 = body3.newObject("Sketcher::SketchObject", "Sketch016")
sketch17.AttachmentSupport = (doc.getObject("XZ_Plane002"), [""])
sketch17.MapMode = "FlatFace"
sketch17.AttachmentOffset = App.Placement(App.Vector(0, 0, -17.05), App.Rotation())
add_polygon(sketch17, [(6.8, -26.1), (6.8, -27.1), (13.8, -27.1), (13.8, -26.1)])  # lines 0-3
add_polygon(sketch17, [(6.8, -18.9), (6.8, -19.9), (13.8, -19.9), (13.8, -18.9)])  # lines 4-7
sketch17.addConstraint(Sketcher.Constraint("Vertical", 0))
sketch17.addConstraint(Sketcher.Constraint("Horizontal", 1))
sketch17.addConstraint(Sketcher.Constraint("Vertical", 2))
sketch17.addConstraint(Sketcher.Constraint("Horizontal", 3))
sketch17.addConstraint(Sketcher.Constraint("Vertical", 4))
sketch17.addConstraint(Sketcher.Constraint("Horizontal", 5))
sketch17.addConstraint(Sketcher.Constraint("Vertical", 6))
sketch17.addConstraint(Sketcher.Constraint("Horizontal", 7))
sketch17.addConstraint(Sketcher.Constraint("Vertical", 3, 2, 4, 2))
sketch17.addConstraint(Sketcher.Constraint("Vertical", 2, 2, 5, 2))
sketch17.addConstraint(Sketcher.Constraint("Equal", 2, 4))
sketch17.addConstraint(Sketcher.Constraint("DistanceX", 1, 1, 1, 2, 7.0))
sketch17.addConstraint(Sketcher.Constraint("DistanceY", 0, 2, 0, 1, 1.0))
sketch17.addConstraint(Sketcher.Constraint("DistanceX", -1, 1, 0, 2, 6.75))
sketch17.addConstraint(Sketcher.Constraint("DistanceY", 3, 2, 4, 2, 6.25))
sketch17.addConstraint(Sketcher.Constraint("DistanceY", 0, 2, -1, 1, 27.125))
pocket7 = body3.newObject("PartDesign::Pocket", "Pocket006")
pocket7.Profile = sketch17
pocket7.Length = 3.95
pocket7.Reversed = True
doc.recompute()

mirrored2 = body3.newObject("PartDesign::Mirrored", "Mirrored001")
mirrored2.Originals = [pocket5, pocket6, pocket7]
mirrored2.MirrorPlane = (doc.getObject("YZ_Plane002"), [""])
body3.Tip = mirrored2

# Sketch on XZ plane
sketch18 = body3.newObject("Sketcher::SketchObject", "Sketch017")
sketch18.AttachmentSupport = (doc.getObject("XZ_Plane002"), [""])
sketch18.MapMode = "FlatFace"
sketch18.AttachmentOffset = App.Placement(App.Vector(0, 0, -13.1), App.Rotation())
add_polygon(sketch18, [(-19, -16), (-19, -30), (19, -30), (19, -16)])  # lines 0-3
sketch18.addConstraint(Sketcher.Constraint("Vertical", 0))
sketch18.addConstraint(Sketcher.Constraint("Horizontal", 1))
sketch18.addConstraint(Sketcher.Constraint("Vertical", 2))
sketch18.addConstraint(Sketcher.Constraint("Horizontal", 3))
sketch18.addConstraint(Sketcher.Constraint("DistanceX", 1, 1, 1, 2, 38.8))
sketch18.addConstraint(Sketcher.Constraint("DistanceY", 0, 2, 0, 1, 14.5))
sketch18.addConstraint(Sketcher.Constraint("DistanceX", 0, 2, -1, 1, 19.4))
sketch18.addConstraint(Sketcher.Constraint("DistanceY", 0, 2, -1, 1, 30.25))
pocket8 = body3.newObject("PartDesign::Pocket", "Pocket007")
pocket8.Profile = sketch18
pocket8.Length = 3.9
body4 = doc.addObject("PartDesign::Body", "Body003")
doc.recompute()

mirroring2 = doc.addObject("Part::Mirroring", "Mirroring001")
mirroring2.Source = body3
mirroring2.Base = App.Vector(0, 0, 0)
mirroring2.Normal = App.Vector(0, 1, 0)
body4.BaseFeature = mirroring2
doc.recompute()
body5 = doc.addObject("PartDesign::Body", "Body004")

# Sketch on XZ plane
sketch19 = body5.newObject("Sketcher::SketchObject", "Sketch018")
sketch19.AttachmentSupport = (doc.getObject("XZ_Plane004"), [""])
sketch19.MapMode = "FlatFace"
sketch19.addGeometry(Part.LineSegment(App.Vector(-33.5, 0, 0), App.Vector(-23.9, 0, 0)), False)
sketch19.addGeometry(Part.LineSegment(App.Vector(-23.9, 0, 0), App.Vector(-23.9, -5, 0)), False)
sketch19.addGeometry(Part.LineSegment(App.Vector(-23.9, -5, 0), App.Vector(-33.2, -5, 0)), False)
sketch19.addGeometry(Part.LineSegment(App.Vector(-33.2, -5, 0), App.Vector(-33.2, -7.2, 0)), False)
sketch19.addGeometry(Part.ArcOfCircle(Part.Circle(App.Vector(-23.7, -5, 0), App.Vector(0, 0, 1), 9.8), math.radians(-180), math.radians(-167.03)), False)
sketch19.addGeometry(Part.LineSegment(App.Vector(-33.5, -5, 0), App.Vector(-33.5, 0, 0)), False)
sketch19.addConstraint(Sketcher.Constraint("Coincident", 0, 2, 1, 1))
sketch19.addConstraint(Sketcher.Constraint("Coincident", 1, 2, 2, 1))
sketch19.addConstraint(Sketcher.Constraint("Coincident", 2, 2, 3, 1))
sketch19.addConstraint(Sketcher.Constraint("Coincident", 3, 2, 4, 2))
sketch19.addConstraint(Sketcher.Constraint("Tangent", 4, 1, 5, 1))
sketch19.addConstraint(Sketcher.Constraint("Coincident", 5, 2, 0, 1))
sketch19.addConstraint(Sketcher.Constraint("Horizontal", 0))
sketch19.addConstraint(Sketcher.Constraint("Vertical", 1))
sketch19.addConstraint(Sketcher.Constraint("Horizontal", 2))
sketch19.addConstraint(Sketcher.Constraint("Vertical", 3))
sketch19.addConstraint(Sketcher.Constraint("Vertical", 5))
sketch19.addConstraint(Sketcher.Constraint("PointOnObject", 0, 2, -1))
sketch19.addConstraint(Sketcher.Constraint("Horizontal", 4, 3, 1, 2))
sketch19.addConstraint(Sketcher.Constraint("DistanceY", 1, 2, 1, 1, 5.0))
sketch19.addConstraint(Sketcher.Constraint("DistanceX", 2, 2, 2, 1, 9.3))
sketch19.addConstraint(Sketcher.Constraint("DistanceY", 3, 2, 3, 1, 2.2))
sketch19.addConstraint(Sketcher.Constraint("Radius", 4, 9.805))
sketch19.addConstraint(Sketcher.Constraint("DistanceX", 4, 1, -1, 1, 33.5))
revolution = body5.newObject("PartDesign::Revolution", "Revolution")
revolution.Profile = sketch19
revolution.ReferenceAxis = (sketch19, ["H_Axis"])
revolution.Angle = 360

# Sketch on YZ plane
sketch20 = body5.newObject("Sketcher::SketchObject", "Sketch019")
sketch20.AttachmentSupport = (doc.getObject("YZ_Plane004"), [""])
sketch20.MapMode = "FlatFace"
sketch20.AttachmentOffset = App.Placement(App.Vector(0, 0, -23.95), App.Rotation())
add_polygon(sketch20, [(1.1, 5), (-1.1, 5), (-1.1, -5), (1.1, -5)])  # lines 0-3
sketch20.addConstraint(Sketcher.Constraint("Horizontal", 0))
sketch20.addConstraint(Sketcher.Constraint("Vertical", 1))
sketch20.addConstraint(Sketcher.Constraint("Horizontal", 2))
sketch20.addConstraint(Sketcher.Constraint("Vertical", 3))
sketch20.addConstraint(Sketcher.Constraint("Symmetric", 0, 2, 2, 2, -1, 1))
sketch20.addConstraint(Sketcher.Constraint("DistanceY", 1, 2, 1, 1, 10.0))
sketch20.addConstraint(Sketcher.Constraint("DistanceX", 0, 2, 0, 1, 2.3))
pocket9 = body5.newObject("PartDesign::Pocket", "Pocket008")
pocket9.Profile = sketch20
pocket9.Length = 3
body6 = doc.addObject("PartDesign::Body", "Body005")
doc.recompute()

mirroring3 = doc.addObject("Part::Mirroring", "Mirroring002")
mirroring3.Source = body5
mirroring3.Base = App.Vector(0, 0, 0)
mirroring3.Normal = App.Vector(1, 0, 0)
body6.BaseFeature = mirroring3
doc.recompute()
mirroring.Visibility = False
mirroring2.Visibility = False
mirroring3.Visibility = False

doc.recompute()
